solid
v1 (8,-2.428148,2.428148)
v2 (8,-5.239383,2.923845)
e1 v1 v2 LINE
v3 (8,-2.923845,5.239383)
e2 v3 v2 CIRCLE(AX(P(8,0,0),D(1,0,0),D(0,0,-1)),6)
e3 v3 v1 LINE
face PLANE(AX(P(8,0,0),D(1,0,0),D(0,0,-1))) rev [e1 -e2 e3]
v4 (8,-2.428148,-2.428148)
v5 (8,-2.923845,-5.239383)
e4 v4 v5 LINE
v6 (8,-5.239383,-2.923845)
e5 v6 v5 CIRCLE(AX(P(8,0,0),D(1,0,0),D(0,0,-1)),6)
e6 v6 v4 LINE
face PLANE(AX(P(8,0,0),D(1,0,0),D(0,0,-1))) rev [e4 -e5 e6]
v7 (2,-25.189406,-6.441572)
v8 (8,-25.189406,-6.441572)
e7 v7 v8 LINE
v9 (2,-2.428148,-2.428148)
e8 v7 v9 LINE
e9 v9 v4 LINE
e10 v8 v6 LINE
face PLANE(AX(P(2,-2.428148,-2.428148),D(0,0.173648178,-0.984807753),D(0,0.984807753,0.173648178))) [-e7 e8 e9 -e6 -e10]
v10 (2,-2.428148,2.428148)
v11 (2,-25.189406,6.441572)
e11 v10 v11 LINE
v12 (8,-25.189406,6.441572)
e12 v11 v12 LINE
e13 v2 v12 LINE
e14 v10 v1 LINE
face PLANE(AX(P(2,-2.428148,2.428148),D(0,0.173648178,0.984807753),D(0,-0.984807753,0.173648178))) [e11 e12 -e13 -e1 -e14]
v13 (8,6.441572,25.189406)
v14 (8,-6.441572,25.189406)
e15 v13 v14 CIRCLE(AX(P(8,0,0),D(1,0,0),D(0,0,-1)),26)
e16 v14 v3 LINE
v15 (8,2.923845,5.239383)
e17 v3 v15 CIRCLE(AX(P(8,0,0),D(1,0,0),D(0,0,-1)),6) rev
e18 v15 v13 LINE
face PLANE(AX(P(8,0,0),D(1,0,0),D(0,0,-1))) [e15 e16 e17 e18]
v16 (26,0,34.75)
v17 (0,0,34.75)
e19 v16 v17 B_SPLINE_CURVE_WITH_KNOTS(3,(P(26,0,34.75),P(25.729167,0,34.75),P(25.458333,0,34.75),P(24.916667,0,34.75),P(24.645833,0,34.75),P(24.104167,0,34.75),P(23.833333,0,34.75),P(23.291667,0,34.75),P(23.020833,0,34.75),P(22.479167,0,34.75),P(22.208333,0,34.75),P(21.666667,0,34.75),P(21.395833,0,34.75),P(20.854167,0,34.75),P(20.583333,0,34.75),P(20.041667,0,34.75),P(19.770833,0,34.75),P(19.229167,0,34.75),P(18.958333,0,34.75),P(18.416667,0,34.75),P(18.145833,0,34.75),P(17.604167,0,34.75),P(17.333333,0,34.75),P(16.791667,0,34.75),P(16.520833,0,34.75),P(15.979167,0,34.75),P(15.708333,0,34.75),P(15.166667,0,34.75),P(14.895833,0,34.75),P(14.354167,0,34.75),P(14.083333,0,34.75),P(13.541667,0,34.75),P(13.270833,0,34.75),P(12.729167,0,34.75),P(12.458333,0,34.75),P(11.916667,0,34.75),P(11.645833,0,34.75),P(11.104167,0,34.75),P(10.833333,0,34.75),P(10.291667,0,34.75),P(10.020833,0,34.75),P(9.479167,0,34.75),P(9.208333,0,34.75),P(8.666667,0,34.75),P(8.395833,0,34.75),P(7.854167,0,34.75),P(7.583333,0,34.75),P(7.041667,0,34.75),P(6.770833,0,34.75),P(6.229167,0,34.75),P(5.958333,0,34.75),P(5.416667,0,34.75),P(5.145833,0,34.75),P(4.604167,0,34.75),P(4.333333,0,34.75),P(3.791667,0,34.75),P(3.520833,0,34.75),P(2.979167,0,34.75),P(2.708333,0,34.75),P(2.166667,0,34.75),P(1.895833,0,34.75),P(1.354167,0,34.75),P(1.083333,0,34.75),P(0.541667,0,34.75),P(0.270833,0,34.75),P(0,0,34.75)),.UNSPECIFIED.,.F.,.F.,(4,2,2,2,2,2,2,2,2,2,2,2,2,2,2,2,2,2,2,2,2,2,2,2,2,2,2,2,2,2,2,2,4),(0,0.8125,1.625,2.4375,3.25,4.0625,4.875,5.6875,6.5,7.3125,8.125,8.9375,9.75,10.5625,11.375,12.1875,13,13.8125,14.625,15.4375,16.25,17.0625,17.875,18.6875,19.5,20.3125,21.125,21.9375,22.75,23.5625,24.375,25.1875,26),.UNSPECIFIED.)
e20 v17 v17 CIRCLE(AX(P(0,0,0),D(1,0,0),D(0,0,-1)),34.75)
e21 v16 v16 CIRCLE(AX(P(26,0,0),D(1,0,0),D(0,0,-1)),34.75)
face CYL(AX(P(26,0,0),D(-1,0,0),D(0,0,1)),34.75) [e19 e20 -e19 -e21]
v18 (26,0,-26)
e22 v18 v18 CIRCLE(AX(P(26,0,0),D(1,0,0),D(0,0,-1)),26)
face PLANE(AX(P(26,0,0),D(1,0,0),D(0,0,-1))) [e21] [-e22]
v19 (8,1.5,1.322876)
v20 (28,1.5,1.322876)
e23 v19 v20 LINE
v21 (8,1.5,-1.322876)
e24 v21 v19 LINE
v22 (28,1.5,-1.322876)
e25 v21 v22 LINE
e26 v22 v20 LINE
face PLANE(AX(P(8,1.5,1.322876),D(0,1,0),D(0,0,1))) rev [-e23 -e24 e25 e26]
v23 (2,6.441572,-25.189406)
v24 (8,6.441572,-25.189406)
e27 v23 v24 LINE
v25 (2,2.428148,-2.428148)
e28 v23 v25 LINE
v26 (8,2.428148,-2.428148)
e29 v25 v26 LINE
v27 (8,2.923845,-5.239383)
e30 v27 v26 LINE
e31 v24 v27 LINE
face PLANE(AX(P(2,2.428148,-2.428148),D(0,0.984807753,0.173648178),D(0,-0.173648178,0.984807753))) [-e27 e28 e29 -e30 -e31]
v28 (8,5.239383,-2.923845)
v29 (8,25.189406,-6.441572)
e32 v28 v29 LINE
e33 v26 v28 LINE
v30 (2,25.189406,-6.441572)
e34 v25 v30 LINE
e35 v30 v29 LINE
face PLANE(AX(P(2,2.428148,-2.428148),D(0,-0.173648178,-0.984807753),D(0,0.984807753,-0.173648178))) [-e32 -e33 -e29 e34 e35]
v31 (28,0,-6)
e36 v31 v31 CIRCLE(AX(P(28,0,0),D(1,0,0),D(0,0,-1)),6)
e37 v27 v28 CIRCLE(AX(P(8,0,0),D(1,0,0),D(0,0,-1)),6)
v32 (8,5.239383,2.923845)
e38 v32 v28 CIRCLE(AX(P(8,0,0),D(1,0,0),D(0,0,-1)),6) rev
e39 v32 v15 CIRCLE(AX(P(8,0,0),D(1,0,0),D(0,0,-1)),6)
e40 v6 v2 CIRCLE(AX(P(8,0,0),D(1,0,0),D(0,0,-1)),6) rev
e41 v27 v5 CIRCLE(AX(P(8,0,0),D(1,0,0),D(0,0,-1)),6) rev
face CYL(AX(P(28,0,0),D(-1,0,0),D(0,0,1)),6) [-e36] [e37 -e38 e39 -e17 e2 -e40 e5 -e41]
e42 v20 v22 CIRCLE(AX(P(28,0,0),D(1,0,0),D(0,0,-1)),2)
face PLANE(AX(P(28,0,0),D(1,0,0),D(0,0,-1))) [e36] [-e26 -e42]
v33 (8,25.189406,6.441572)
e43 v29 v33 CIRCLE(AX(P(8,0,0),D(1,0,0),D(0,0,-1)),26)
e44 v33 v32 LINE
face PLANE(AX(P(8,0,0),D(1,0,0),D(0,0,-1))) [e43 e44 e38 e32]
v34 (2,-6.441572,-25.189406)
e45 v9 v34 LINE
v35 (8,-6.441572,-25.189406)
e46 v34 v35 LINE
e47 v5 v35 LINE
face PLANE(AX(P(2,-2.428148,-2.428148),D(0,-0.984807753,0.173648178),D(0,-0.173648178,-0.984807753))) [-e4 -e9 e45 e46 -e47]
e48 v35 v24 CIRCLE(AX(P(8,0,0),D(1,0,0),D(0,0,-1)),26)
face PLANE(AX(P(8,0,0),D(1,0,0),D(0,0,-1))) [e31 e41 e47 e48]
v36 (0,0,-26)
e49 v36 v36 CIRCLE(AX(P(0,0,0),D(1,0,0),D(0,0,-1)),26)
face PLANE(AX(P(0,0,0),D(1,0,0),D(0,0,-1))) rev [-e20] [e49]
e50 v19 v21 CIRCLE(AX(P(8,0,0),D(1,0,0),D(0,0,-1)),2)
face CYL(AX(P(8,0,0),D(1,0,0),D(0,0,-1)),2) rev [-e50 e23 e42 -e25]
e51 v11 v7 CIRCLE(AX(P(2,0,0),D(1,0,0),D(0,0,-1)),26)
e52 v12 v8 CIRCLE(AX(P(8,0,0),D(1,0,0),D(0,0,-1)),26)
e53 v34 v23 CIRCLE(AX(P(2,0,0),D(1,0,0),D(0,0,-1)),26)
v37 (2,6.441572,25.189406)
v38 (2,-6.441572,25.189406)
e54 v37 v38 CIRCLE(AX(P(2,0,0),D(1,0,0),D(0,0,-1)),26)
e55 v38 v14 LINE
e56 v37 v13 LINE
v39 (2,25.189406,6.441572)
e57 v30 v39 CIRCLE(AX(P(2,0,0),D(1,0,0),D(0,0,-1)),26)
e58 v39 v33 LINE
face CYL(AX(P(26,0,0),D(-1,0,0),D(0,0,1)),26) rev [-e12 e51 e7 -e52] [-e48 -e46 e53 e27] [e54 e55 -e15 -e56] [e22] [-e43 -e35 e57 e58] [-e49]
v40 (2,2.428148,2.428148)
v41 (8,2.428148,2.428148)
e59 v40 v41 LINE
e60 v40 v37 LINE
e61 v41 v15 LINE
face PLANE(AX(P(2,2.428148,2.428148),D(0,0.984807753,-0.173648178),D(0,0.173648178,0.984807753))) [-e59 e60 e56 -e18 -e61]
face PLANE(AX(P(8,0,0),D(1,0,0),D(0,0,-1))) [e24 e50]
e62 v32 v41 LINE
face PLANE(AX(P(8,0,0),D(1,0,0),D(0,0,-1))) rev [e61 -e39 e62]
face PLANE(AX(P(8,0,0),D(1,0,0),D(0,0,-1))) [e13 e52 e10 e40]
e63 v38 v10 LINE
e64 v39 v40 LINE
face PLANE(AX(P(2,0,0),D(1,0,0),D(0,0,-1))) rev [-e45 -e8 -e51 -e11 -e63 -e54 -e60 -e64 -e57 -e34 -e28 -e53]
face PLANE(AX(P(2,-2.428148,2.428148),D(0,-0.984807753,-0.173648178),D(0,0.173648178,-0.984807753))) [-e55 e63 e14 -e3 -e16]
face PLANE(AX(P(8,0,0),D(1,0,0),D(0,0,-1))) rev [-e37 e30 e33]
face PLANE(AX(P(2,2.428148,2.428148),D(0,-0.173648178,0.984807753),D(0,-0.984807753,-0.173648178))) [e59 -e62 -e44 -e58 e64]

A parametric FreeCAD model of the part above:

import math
import FreeCAD as App
import Part
import Sketcher
Q = App.Units.Quantity

doc = App.newDocument("Part")
body = doc.addObject("PartDesign::Body", "Body")

sketch1 = body.newObject("Sketcher::SketchObject", "Sketch")
sketch1.AttachmentSupport = (doc.getObject("YZ_Plane"), [""])
sketch1.MapMode = "FlatFace"
sketch1.addGeometry(Part.Circle(App.Vector(0, 0, 0), App.Vector(0, 0, 1), 35), False)
sketch1.addGeometry(Part.Circle(App.Vector(0, 0, 0), App.Vector(0, 0, 1), 26), False)
sketch1.addConstraint(Sketcher.Constraint("Coincident", 0, 3, -1, 1))
sketch1.addConstraint(Sketcher.Constraint("Coincident", 1, 3, -1, 1))
sketch1.addConstraint(Sketcher.Constraint("Diameter", 1, 52.0))
sketch1.addConstraint(Sketcher.Constraint("Diameter", 0, 69.5))
pad1 = body.newObject("PartDesign::Pad", "Pad")
pad1.Profile = sketch1
pad1.Length = 26

sketch2 = body.newObject("Sketcher::SketchObject", "Sketch001")
sketch2.AttachmentSupport = (doc.getObject("YZ_Plane"), [""])
sketch2.MapMode = "FlatFace"
sketch2.AttachmentOffset = App.Placement(App.Vector(0, 0, 5), App.Rotation())
sketch2.addGeometry(Part.LineSegment(App.Vector(25, 6, 0), App.Vector(2, 2, 0)), False)
sketch2.addGeometry(Part.LineSegment(App.Vector(2, 2, 0), App.Vector(6, 25, 0)), False)
sketch2.addGeometry(Part.ArcOfCircle(Part.Circle(App.Vector(0, 0, 0), App.Vector(0, 0, 1), 26), math.radians(76), math.radians(104)), False)
sketch2.addGeometry(Part.LineSegment(App.Vector(-6, 25, 0), App.Vector(-2, 2, 0)), False)
sketch2.addGeometry(Part.LineSegment(App.Vector(-2, 2, 0), App.Vector(-25, 6, 0)), False)
sketch2.addGeometry(Part.ArcOfCircle(Part.Circle(App.Vector(0, 0, 0), App.Vector(0, 0, 1), 26), math.radians(166), math.radians(194)), False)
sketch2.addGeometry(Part.LineSegment(App.Vector(-25, -6, 0), App.Vector(-2, -2, 0)), False)
sketch2.addGeometry(Part.LineSegment(App.Vector(-2, -2, 0), App.Vector(-6, -25, 0)), False)
sketch2.addGeometry(Part.ArcOfCircle(Part.Circle(App.Vector(0, 0, 0), App.Vector(0, 0, 1), 26), math.radians(-104), math.radians(-76)), False)
sketch2.addGeometry(Part.LineSegment(App.Vector(6, -25, 0), App.Vector(2, -2, 0)), False)
sketch2.addGeometry(Part.LineSegment(App.Vector(2, -2, 0), App.Vector(25, -6, 0)), False)
sketch2.addGeometry(Part.ArcOfCircle(Part.Circle(App.Vector(0, 0, 0), App.Vector(0, 0, 1), 26), math.radians(-14), math.radians(14)), False)
sketch2.addConstraint(Sketcher.Constraint("Coincident", 0, 2, 1, 1))
sketch2.addConstraint(Sketcher.Constraint("Coincident", 1, 2, 2, 1))
sketch2.addConstraint(Sketcher.Constraint("Coincident", 2, 2, 3, 1))
sketch2.addConstraint(Sketcher.Constraint("Coincident", 3, 2, 4, 1))
sketch2.addConstraint(Sketcher.Constraint("Coincident", 4, 2, 5, 1))
sketch2.addConstraint(Sketcher.Constraint("Coincident", 5, 2, 6, 1))
sketch2.addConstraint(Sketcher.Constraint("Coincident", 6, 2, 7, 1))
sketch2.addConstraint(Sketcher.Constraint("Coincident", 7, 2, 8, 1))
sketch2.addConstraint(Sketcher.Constraint("Coincident", 8, 2, 9, 1))
sketch2.addConstraint(Sketcher.Constraint("Coincident", 9, 2, 10, 1))
sketch2.addConstraint(Sketcher.Constraint("Coincident", 10, 2, 11, 1))
sketch2.addConstraint(Sketcher.Constraint("Coincident", 11, 2, 0, 1))
sketch2.addConstraint(Sketcher.Constraint("Coincident", 2, 3, -1, 1))
sketch2.addConstraint(Sketcher.Constraint("Coincident", 5, 3, -1, 1))
sketch2.addConstraint(Sketcher.Constraint("Coincident", 8, 3, -1, 1))
sketch2.addConstraint(Sketcher.Constraint("Coincident", 11, 3, -1, 1))
sketch2.addConstraint(Sketcher.Constraint("Equal", 2, 5))
sketch2.addConstraint(Sketcher.Constraint("Equal", 5, 8))
sketch2.addConstraint(Sketcher.Constraint("Equal", 8, 11))
sketch2.addConstraint(Sketcher.Constraint("Symmetric", 0, 2, 6, 2, -1, 1))
sketch2.addConstraint(Sketcher.Constraint("Symmetric", 3, 2, 9, 2, -1, 1))
sketch2.addConstraint(Sketcher.Constraint("Symmetric", 0, 2, 3, 2, -2))
sketch2.addConstraint(Sketcher.Constraint("Perpendicular", 0, 3))
sketch2.addConstraint(Sketcher.Constraint("Perpendicular", 1, 4))
sketch2.addConstraint(Sketcher.Constraint("Perpendicular", 3, 6))
sketch2.addConstraint(Sketcher.Constraint("Perpendicular", 4, 7))
sketch2.addConstraint(Sketcher.Constraint("Perpendicular", 6, 9))
sketch2.addConstraint(Sketcher.Constraint("Perpendicular", 7, 10))
sketch2.addConstraint(Sketcher.Constraint("Horizontal", 1, 2, 2, 2))
sketch2.addConstraint(Sketcher.Constraint("Equal", 0, 1))
sketch2.addConstraint(Sketcher.Constraint("Radius", 2, 26.0))
sketch2.addConstraint(Sketcher.Constraint("Angle", 0, Q("-170 deg")))
sketch2.addConstraint(Sketcher.Constraint("DistanceX", -1, 1, 0, 2, 2.428148))
pad2 = body.newObject("PartDesign::Pad", "Pad001")
pad2.Profile = sketch2
pad2.Type = "TwoLengths"
pad2.Length = 3
pad2.Length2 = 3

sketch3 = body.newObject("Sketcher::SketchObject", "Sketch002")
sketch3.AttachmentSupport = (doc.getObject("YZ_Plane"), [""])
sketch3.MapMode = "FlatFace"
sketch3.AttachmentOffset = App.Placement(App.Vector(0, 0, 8), App.Rotation())
sketch3.addGeometry(Part.Circle(App.Vector(0, 0, 0), App.Vector(0, 0, 1), 6), False)
sketch3.addConstraint(Sketcher.Constraint("Coincident", 0, 3, -1, 1))
sketch3.addConstraint(Sketcher.Constraint("Diameter", 0, 12.0))
pad3 = body.newObject("PartDesign::Pad", "Pad002")
pad3.Profile = sketch3
pad3.Length = 20

sketch4 = body.newObject("Sketcher::SketchObject", "Sketch003")
sketch4.AttachmentSupport = (doc.getObject("YZ_Plane"), [""])
sketch4.MapMode = "FlatFace"
sketch4.AttachmentOffset = App.Placement(App.Vector(0, 0, 28), App.Rotation())
sketch4.addGeometry(Part.LineSegment(App.Vector(1.5, -1.3, 0), App.Vector(1.5, 1.3, 0)), False)
sketch4.addGeometry(Part.ArcOfCircle(Part.Circle(App.Vector(0, 0, 0), App.Vector(0, 0, 1), 2), math.radians(41), math.radians(319)), False)
sketch4.addConstraint(Sketcher.Constraint("Coincident", 0, 1, 1, 2))
sketch4.addConstraint(Sketcher.Constraint("Coincident", 1, 1, 0, 2))
sketch4.addConstraint(Sketcher.Constraint("Vertical", 0))
sketch4.addConstraint(Sketcher.Constraint("Coincident", 1, 3, -1, 1))
sketch4.addConstraint(Sketcher.Constraint("Radius", 1, 2.0))
sketch4.addConstraint(Sketcher.Constraint("DistanceX", -1, 1, 0, 1, 1.5))
pocket1 = body.newObject("PartDesign::Pocket", "Pocket")
pocket1.Profile = sketch4
pocket1.Length = 20

doc.recompute()
